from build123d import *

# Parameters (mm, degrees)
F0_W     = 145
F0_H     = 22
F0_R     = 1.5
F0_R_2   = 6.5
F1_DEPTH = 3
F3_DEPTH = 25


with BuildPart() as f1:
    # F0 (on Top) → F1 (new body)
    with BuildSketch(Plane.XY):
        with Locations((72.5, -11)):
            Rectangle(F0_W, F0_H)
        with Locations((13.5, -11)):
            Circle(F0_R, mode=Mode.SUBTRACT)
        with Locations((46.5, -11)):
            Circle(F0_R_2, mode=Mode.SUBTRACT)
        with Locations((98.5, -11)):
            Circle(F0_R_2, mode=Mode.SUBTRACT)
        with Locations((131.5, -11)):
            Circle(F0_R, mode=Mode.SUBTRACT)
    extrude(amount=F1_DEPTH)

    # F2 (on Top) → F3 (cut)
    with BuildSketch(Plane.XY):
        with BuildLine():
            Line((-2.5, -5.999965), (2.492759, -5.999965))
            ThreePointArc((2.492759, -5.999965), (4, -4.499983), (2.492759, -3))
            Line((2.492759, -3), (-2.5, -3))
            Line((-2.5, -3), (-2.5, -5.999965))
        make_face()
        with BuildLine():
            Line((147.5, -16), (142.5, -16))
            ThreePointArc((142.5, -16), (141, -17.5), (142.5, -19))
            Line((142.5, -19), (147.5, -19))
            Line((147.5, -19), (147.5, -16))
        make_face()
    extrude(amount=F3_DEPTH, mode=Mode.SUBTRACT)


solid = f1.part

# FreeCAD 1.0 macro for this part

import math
import FreeCAD as App
import Part
import Sketcher
from FreeCAD import Vector
Q = App.Units.Quantity


def add_polygon(sketch, points):
    """Adds a closed chain of lines whose ends are joined by coincident constraints."""
    first, n = sketch.GeometryCount, len(points)
    for a, b in zip(points, points[1:] + points[:1]):
        sketch.addGeometry(Part.LineSegment(App.Vector(*a, 0), App.Vector(*b, 0)), False)
    for i in range(n):
        sketch.addConstraint(Sketcher.Constraint("Coincident", first + i, 2, first + (i + 1) % n, 1))

doc = App.newDocument("Part")
body = doc.addObject("PartDesign::Body", "Body")

sketch1 = doc.addObject("Sketcher::SketchObject", "Sketch")
body.addObject(sketch1)
sketch1.AttachmentSupport = (doc.XY_Plane, [""])
sketch1.MapMode = "FlatFace"
add_polygon(sketch1, [(0, 0), (0, -22), (145, -22), (145, 0)])
sketch1.addGeometry(Part.Circle(Vector(13.5, -11, 0), Vector(0, 0, 1), 1.5), False)
sketch1.addGeometry(Part.Circle(Vector(46.5, -11, 0), Vector(0, 0, 1), 6.5), False)
sketch1.addGeometry(Part.Circle(Vector(98.5, -11, 0), Vector(0, 0, 1), 6.5), False)
sketch1.addGeometry(Part.Circle(Vector(131.5, -11, 0), Vector(0, 0, 1), 1.5), False)
sketch1.addConstraint(Sketcher.Constraint("Vertical", 0))
sketch1.addConstraint(Sketcher.Constraint("Horizontal", 1))
sketch1.addConstraint(Sketcher.Constraint("Vertical", 2))
sketch1.addConstraint(Sketcher.Constraint("Horizontal", 3))
sketch1.addConstraint(Sketcher.Constraint("Coincident", 3, 2, -1, 1))
sketch1.addConstraint(Sketcher.Constraint("Equal", 5, 6))
sketch1.addConstraint(Sketcher.Constraint("Equal", 4, 7))
sketch1.addConstraint(Sketcher.Constraint("Horizontal", 4, 3, 5, 3))
sketch1.addConstraint(Sketcher.Constraint("Horizontal", 5, 3, 6, 3))
sketch1.addConstraint(Sketcher.Constraint("Horizontal", 6, 3, 7, 3))
sketch1.addConstraint(Sketcher.Constraint("Diameter", 4, Q("3 mm")))
sketch1.addConstraint(Sketcher.Constraint("Diameter", 5, Q("13 mm")))
sketch1.addConstraint(Sketcher.Constraint("DistanceX", 1, 1, 1, 2, Q("145 mm")))
sketch1.addConstraint(Sketcher.Constraint("DistanceY", 0, 2, 0, 1, Q("22 mm")))
sketch1.addConstraint(Sketcher.Constraint("DistanceY", 4, 3, -1, 1, Q("11 mm")))
sketch1.addConstraint(Sketcher.Constraint("DistanceX", 4, 3, 5, 3, Q("33 mm")))
sketch1.addConstraint(Sketcher.Constraint("DistanceX", 5, 3, 6, 3, Q("52 mm")))
sketch1.addConstraint(Sketcher.Constraint("DistanceX", 6, 3, 7, 3, Q("33 mm")))
sketch1.addConstraint(Sketcher.Constraint("DistanceX", -1, 1, 4, 3, Q("13.5 mm")))
pad1 = doc.addObject("PartDesign::Pad", "Pad")
body.addObject(pad1)
pad1.Profile = sketch1
pad1.Length = 3

sketch2 = doc.addObject("Sketcher::SketchObject", "Sketch001")
body.addObject(sketch2)
sketch2.AttachmentSupport = (doc.XY_Plane, [""])
sketch2.MapMode = "FlatFace"
sketch2.addGeometry(Part.LineSegment(Vector(-2.5, -6, 0), Vector(2.5, -6, 0)), False)
sketch2.addGeometry(Part.ArcOfCircle(Part.Circle(Vector(2.5, -4.5, 0), Vector(0, 0, 1), 1.5), math.radians(-90), math.radians(90)), False)
sketch2.addGeometry(Part.LineSegment(Vector(2.5, -3, 0), Vector(-2.5, -3, 0)), False)
sketch2.addGeometry(Part.LineSegment(Vector(-2.5, -3, 0), Vector(-2.5, -6, 0)), False)
sketch2.addGeometry(Part.LineSegment(Vector(147.5, -16, 0), Vector(142.5, -16, 0)), False)
sketch2.addGeometry(Part.ArcOfCircle(Part.Circle(Vector(142.5, -17.5, 0), Vector(0, 0, 1), 1.5), math.radians(90), math.radians(270)), False)
sketch2.addGeometry(Part.LineSegment(Vector(142.5, -19, 0), Vector(147.5, -19, 0)), False)
sketch2.addGeometry(Part.LineSegment(Vector(147.5, -19, 0), Vector(147.5, -16, 0)), False)
sketch2.addConstraint(Sketcher.Constraint("Coincident", 0, 2, 1, 1))
sketch2.addConstraint(Sketcher.Constraint("Coincident", 1, 2, 2, 1))
sketch2.addConstraint(Sketcher.Constraint("Coincident", 2, 2, 3, 1))
sketch2.addConstraint(Sketcher.Constraint("Coincident", 3, 2, 0, 1))
sketch2.addConstraint(Sketcher.Constraint("Tangent", 4, 2, 5, 1))
sketch2.addConstraint(Sketcher.Constraint("Tangent", 5, 2, 6, 1))
sketch2.addConstraint(Sketcher.Constraint("Coincident", 6, 2, 7, 1))
sketch2.addConstraint(Sketcher.Constraint("Coincident", 7, 2, 4, 1))
sketch2.addConstraint(Sketcher.Constraint("Horizontal", 0))
sketch2.addConstraint(Sketcher.Constraint("Horizontal", 2))
sketch2.addConstraint(Sketcher.Constraint("Vertical", 3))
sketch2.addConstraint(Sketcher.Constraint("Horizontal", 4))
sketch2.addConstraint(Sketcher.Constraint("Horizontal", 6))
sketch2.addConstraint(Sketcher.Constraint("Vertical", 7))
sketch2.addConstraint(Sketcher.Constraint("Equal", 1, 5))
sketch2.addConstraint(Sketcher.Constraint("Vertical", 0, 2, 1, 2))
sketch2.addConstraint(Sketcher.Constraint("Radius", 1, Q("1.5 mm")))
sketch2.addConstraint(Sketcher.Constraint("DistanceX", 4, 2, 4, 1, Q("5 mm")))
sketch2.addConstraint(Sketcher.Constraint("DistanceY", 1, 2, -1, 1, Q("3 mm")))
sketch2.addConstraint(Sketcher.Constraint("DistanceY", 4, 2, -1, 1, Q("16 mm")))
sketch2.addConstraint(Sketcher.Constraint("DistanceX", 1, 3, 5, 3, Q("140 mm")))
sketch2.addConstraint(Sketcher.Constraint("DistanceX", 2, 2, 1, 3, Q("5 mm")))
sketch2.addConstraint(Sketcher.Constraint("DistanceX", -1, 1, 1, 3, Q("2.5 mm")))
sketch2.addConstraint(Sketcher.Constraint("DistanceX", 0, 1, 0, 2, Q("4.992759 mm")))
pocket1 = doc.addObject("PartDesign::Pocket", "Pocket")
body.addObject(pocket1)
pocket1.Profile = sketch2
pocket1.Length = 25
pocket1.Reversed = True

doc.recompute()
